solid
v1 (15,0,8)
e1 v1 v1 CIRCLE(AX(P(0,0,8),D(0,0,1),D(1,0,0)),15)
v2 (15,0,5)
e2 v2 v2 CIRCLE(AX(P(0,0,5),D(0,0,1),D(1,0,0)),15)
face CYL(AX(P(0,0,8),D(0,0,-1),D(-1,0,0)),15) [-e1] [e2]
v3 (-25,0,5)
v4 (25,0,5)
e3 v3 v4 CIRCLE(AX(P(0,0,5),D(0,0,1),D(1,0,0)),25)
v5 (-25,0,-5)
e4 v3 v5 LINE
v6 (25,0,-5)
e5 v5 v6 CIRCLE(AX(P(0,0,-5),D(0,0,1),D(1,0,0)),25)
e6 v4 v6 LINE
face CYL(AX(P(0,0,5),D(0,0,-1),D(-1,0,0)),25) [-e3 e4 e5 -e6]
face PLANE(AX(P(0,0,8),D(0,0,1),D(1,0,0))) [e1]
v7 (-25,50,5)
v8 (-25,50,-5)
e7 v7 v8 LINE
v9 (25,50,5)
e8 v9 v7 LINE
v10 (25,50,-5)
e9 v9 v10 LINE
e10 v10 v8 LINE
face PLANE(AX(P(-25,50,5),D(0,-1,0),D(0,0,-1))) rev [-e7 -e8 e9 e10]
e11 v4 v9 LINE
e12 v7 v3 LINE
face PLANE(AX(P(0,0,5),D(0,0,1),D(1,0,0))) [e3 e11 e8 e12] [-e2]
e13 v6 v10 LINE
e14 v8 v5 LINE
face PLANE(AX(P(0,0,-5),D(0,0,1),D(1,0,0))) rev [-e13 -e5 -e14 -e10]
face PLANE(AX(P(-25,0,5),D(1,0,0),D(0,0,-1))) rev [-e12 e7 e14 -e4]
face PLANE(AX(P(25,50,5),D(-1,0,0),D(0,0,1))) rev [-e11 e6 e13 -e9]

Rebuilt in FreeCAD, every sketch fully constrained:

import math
import FreeCAD as App
import Part
import Sketcher

V = App.Vector
Q = App.Units.Quantity

doc = App.newDocument("Part")
body = doc.addObject("PartDesign::Body", "Body")

# Sketch on XY plane
sketch1 = doc.addObject("Sketcher::SketchObject", "Sketch")
body.addObject(sketch1)
sketch1.AttachmentSupport = (doc.XY_Plane, [""])
sketch1.MapMode = "FlatFace"
sketch1.addGeometry([
    Part.LineSegment(V(-25, 50, 0), V(-25, 0, 0)),
    Part.ArcOfCircle(Part.Circle(V(0, 0, 0), V(0, 0, 1), 25), math.radians(180), math.radians(360)),
    Part.LineSegment(V(25, 0, 0), V(25, 50, 0)),
    Part.LineSegment(V(25, 50, 0), V(-25, 50, 0)),
], False)
sketch1.addConstraint([
    Sketcher.Constraint("Tangent", 0, 2, 1, 1),
    Sketcher.Constraint("Tangent", 1, 2, 2, 1),
    Sketcher.Constraint("Coincident", 2, 2, 3, 1),
    Sketcher.Constraint("Coincident", 3, 2, 0, 1),
    Sketcher.Constraint("Vertical", 0),
    Sketcher.Constraint("Vertical", 2),
    Sketcher.Constraint("Horizontal", 3),
    Sketcher.Constraint("Coincident", 1, 3, -1, 1),
    Sketcher.Constraint("Equal", 3, 0),
    Sketcher.Constraint("Radius", 1, Q("25 mm")),
])
pad1 = doc.addObject("PartDesign::Pad", "Pad")
body.addObject(pad1)
pad1.Profile = sketch1
pad1.Length = 10
pad1.Midplane = True

# Sketch on XY plane
sketch2 = doc.addObject("Sketcher::SketchObject", "Sketch001")
body.addObject(sketch2)
sketch2.AttachmentSupport = (doc.XY_Plane, [""])
sketch2.MapMode = "FlatFace"
sketch2.AttachmentOffset = App.Placement(V(0, 0, 5), App.Rotation())
sketch2.addGeometry(Part.Circle(V(0, 0, 0), V(0, 0, 1), 15), False)
sketch2.addConstraint([
    Sketcher.Constraint("Coincident", 0, 3, -1, 1),
    Sketcher.Constraint("Diameter", 0, Q("30 mm")),
])
pad2 = doc.addObject("PartDesign::Pad", "Pad001")
body.addObject(pad2)
pad2.Profile = sketch2
pad2.Length = 3

doc.recompute()
